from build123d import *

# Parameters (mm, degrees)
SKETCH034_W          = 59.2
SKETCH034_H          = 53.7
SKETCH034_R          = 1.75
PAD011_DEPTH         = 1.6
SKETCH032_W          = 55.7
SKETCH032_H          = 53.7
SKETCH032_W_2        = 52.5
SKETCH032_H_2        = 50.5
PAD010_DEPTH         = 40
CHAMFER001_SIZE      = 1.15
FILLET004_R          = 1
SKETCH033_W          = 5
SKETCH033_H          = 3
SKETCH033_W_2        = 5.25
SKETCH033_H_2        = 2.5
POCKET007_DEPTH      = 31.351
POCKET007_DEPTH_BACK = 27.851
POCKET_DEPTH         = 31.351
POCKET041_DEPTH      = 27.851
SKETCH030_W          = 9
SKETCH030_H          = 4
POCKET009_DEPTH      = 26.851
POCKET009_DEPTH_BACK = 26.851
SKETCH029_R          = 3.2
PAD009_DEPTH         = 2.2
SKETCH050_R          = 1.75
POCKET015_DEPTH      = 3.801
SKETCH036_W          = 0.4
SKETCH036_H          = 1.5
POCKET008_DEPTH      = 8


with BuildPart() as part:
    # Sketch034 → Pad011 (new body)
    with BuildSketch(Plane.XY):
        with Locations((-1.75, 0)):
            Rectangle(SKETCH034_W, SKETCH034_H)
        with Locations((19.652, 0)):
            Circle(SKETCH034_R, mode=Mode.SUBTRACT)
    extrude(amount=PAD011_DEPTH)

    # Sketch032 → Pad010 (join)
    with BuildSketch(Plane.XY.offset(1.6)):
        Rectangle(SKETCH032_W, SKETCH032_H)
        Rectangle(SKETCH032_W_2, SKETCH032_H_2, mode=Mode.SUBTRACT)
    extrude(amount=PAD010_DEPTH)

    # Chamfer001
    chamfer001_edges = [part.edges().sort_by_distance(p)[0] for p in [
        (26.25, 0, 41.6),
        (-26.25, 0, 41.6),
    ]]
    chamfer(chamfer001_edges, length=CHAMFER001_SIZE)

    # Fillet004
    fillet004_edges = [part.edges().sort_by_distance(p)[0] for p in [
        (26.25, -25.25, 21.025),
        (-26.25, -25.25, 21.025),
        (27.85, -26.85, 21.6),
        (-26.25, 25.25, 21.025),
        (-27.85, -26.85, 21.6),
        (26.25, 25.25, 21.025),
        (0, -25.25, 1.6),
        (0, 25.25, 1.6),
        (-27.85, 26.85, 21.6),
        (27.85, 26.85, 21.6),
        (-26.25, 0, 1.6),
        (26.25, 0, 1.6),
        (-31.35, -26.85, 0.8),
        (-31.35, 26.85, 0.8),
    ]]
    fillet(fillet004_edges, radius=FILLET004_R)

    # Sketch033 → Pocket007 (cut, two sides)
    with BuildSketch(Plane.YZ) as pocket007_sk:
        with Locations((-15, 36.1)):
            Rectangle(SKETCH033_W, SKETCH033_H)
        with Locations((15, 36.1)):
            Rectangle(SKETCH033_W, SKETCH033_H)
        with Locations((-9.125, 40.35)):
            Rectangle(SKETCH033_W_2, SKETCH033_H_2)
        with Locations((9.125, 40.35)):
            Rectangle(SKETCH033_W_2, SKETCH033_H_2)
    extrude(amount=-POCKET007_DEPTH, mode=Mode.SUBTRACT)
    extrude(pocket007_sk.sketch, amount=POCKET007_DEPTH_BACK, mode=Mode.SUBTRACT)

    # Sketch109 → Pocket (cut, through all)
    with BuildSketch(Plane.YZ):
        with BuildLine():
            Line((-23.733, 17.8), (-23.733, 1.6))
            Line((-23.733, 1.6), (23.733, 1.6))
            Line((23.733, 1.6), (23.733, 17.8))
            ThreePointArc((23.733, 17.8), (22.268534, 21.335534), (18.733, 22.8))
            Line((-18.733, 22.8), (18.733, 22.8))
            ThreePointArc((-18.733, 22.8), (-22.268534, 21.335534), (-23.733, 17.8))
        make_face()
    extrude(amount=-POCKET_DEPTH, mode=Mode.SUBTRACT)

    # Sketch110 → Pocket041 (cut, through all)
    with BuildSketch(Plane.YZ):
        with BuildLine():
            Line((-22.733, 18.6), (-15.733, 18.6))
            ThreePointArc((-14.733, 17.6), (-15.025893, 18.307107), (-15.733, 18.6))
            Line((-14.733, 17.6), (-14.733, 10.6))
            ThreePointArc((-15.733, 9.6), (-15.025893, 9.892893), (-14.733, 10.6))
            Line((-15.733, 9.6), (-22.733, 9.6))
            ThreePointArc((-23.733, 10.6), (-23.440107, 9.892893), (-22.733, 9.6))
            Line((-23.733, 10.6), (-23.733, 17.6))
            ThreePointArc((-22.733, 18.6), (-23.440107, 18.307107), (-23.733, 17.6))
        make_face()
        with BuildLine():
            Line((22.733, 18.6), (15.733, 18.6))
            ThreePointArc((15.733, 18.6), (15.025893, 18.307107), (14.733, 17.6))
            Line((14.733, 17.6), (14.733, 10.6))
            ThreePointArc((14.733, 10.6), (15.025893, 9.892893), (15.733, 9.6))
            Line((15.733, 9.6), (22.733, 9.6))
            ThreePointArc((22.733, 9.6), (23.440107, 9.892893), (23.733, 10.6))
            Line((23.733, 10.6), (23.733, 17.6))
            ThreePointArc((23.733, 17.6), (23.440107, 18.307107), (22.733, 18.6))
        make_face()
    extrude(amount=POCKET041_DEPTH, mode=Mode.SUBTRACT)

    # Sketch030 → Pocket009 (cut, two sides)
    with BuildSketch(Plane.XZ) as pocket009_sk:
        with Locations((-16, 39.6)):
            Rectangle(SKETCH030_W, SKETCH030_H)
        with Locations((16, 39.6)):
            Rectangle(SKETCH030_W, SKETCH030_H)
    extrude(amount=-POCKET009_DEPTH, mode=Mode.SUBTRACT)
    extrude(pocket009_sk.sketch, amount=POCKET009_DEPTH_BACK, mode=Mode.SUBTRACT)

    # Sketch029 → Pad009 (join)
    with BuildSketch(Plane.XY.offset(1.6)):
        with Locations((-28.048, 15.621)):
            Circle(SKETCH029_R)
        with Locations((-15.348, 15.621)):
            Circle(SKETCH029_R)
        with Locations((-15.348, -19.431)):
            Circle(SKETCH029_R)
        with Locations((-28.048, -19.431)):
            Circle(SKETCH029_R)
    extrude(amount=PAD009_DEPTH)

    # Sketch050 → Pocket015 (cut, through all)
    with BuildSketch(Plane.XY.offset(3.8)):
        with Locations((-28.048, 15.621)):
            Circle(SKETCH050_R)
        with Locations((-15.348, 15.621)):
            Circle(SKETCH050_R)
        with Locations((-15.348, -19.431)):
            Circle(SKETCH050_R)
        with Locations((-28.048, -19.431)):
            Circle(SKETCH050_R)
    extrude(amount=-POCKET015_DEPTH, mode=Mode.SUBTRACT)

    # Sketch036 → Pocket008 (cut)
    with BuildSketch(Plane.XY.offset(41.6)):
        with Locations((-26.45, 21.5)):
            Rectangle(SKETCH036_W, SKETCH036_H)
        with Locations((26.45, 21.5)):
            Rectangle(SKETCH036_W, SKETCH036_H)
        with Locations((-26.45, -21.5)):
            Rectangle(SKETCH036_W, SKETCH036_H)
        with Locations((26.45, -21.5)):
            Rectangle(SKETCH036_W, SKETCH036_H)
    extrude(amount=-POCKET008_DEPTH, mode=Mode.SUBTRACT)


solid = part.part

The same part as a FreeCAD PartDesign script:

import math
import FreeCAD as App
import Part
import Sketcher


def edges_at(feature, points):
    """Names of the edges that pass closest to the given points."""
    edges = feature.Shape.Edges
    near = lambda p: min(range(len(edges)), key=lambda i: edges[i].distToShape(Part.Vertex(*p))[0])
    return sorted({f"Edge{near(p) + 1}" for p in points})

doc = App.newDocument("Part")
body = doc.addObject("PartDesign::Body", "Body")

sketch1 = body.newObject("Sketcher::SketchObject", "Sketch")
sketch1.AttachmentSupport = (doc.getObject("XY_Plane"), [""])
sketch1.MapMode = "FlatFace"
sketch1.addGeometry(Part.LineSegment(App.Vector(-31.35, 26.85, 0), App.Vector(-31.35, -26.85, 0)), False)
sketch1.addGeometry(Part.LineSegment(App.Vector(-31.35, -26.85, 0), App.Vector(27.85, -26.85, 0)), False)
sketch1.addGeometry(Part.LineSegment(App.Vector(27.85, -26.85, 0), App.Vector(27.85, 26.85, 0)), False)
sketch1.addGeometry(Part.LineSegment(App.Vector(27.85, 26.85, 0), App.Vector(-31.35, 26.85, 0)), False)
sketch1.addGeometry(Part.Circle(App.Vector(19.652, 0, 0), App.Vector(0, 0, 1), 1.75), False)
sketch1.addConstraint(Sketcher.Constraint("Coincident", 0, 2, 1, 1))
sketch1.addConstraint(Sketcher.Constraint("Coincident", 1, 2, 2, 1))
sketch1.addConstraint(Sketcher.Constraint("Coincident", 2, 2, 3, 1))
sketch1.addConstraint(Sketcher.Constraint("Coincident", 3, 2, 0, 1))
sketch1.addConstraint(Sketcher.Constraint("Vertical", 0))
sketch1.addConstraint(Sketcher.Constraint("Horizontal", 1))
sketch1.addConstraint(Sketcher.Constraint("Vertical", 2))
sketch1.addConstraint(Sketcher.Constraint("Horizontal", 3))
sketch1.addConstraint(Sketcher.Constraint("PointOnObject", 4, 3, -1))
sketch1.addConstraint(Sketcher.Constraint("Diameter", 4, 3.5))
sketch1.addConstraint(Sketcher.Constraint("DistanceX", 1, 1, 1, 2, 59.2))
sketch1.addConstraint(Sketcher.Constraint("DistanceY", 0, 2, 0, 1, 53.7))
sketch1.addConstraint(Sketcher.Constraint("DistanceX", 0, 2, -1, 1, 31.35))
sketch1.addConstraint(Sketcher.Constraint("DistanceY", 0, 2, -1, 1, 26.85))
sketch1.addConstraint(Sketcher.Constraint("DistanceX", -1, 1, 4, 3, 19.652))
pad1 = body.newObject("PartDesign::Pad", "Pad")
pad1.Profile = sketch1
pad1.Length = 1.6

sketch2 = body.newObject("Sketcher::SketchObject", "Sketch001")
sketch2.AttachmentSupport = (doc.getObject("XY_Plane"), [""])
sketch2.MapMode = "FlatFace"
sketch2.AttachmentOffset = App.Placement(App.Vector(0, 0, 1.6), App.Rotation())
sketch2.addGeometry(Part.LineSegment(App.Vector(-27.85, 26.85, 0), App.Vector(-27.85, -26.85, 0)), False)
sketch2.addGeometry(Part.LineSegment(App.Vector(-27.85, -26.85, 0), App.Vector(27.85, -26.85, 0)), False)
sketch2.addGeometry(Part.LineSegment(App.Vector(27.85, -26.85, 0), App.Vector(27.85, 26.85, 0)), False)
sketch2.addGeometry(Part.LineSegment(App.Vector(27.85, 26.85, 0), App.Vector(-27.85, 26.85, 0)), False)
sketch2.addGeometry(Part.LineSegment(App.Vector(26.25, -25.25, 0), App.Vector(-26.25, -25.25, 0)), False)
sketch2.addGeometry(Part.LineSegment(App.Vector(-26.25, -25.25, 0), App.Vector(-26.25, 25.25, 0)), False)
sketch2.addGeometry(Part.LineSegment(App.Vector(-26.25, 25.25, 0), App.Vector(26.25, 25.25, 0)), False)
sketch2.addGeometry(Part.LineSegment(App.Vector(26.25, 25.25, 0), App.Vector(26.25, -25.25, 0)), False)
sketch2.addConstraint(Sketcher.Constraint("Coincident", 0, 2, 1, 1))
sketch2.addConstraint(Sketcher.Constraint("Coincident", 1, 2, 2, 1))
sketch2.addConstraint(Sketcher.Constraint("Coincident", 2, 2, 3, 1))
sketch2.addConstraint(Sketcher.Constraint("Coincident", 3, 2, 0, 1))
sketch2.addConstraint(Sketcher.Constraint("Coincident", 4, 2, 5, 1))
sketch2.addConstraint(Sketcher.Constraint("Coincident", 5, 2, 6, 1))
sketch2.addConstraint(Sketcher.Constraint("Coincident", 6, 2, 7, 1))
sketch2.addConstraint(Sketcher.Constraint("Coincident", 7, 2, 4, 1))
sketch2.addConstraint(Sketcher.Constraint("Vertical", 0))
sketch2.addConstraint(Sketcher.Constraint("Horizontal", 1))
sketch2.addConstraint(Sketcher.Constraint("Vertical", 2))
sketch2.addConstraint(Sketcher.Constraint("Horizontal", 3))
sketch2.addConstraint(Sketcher.Constraint("Horizontal", 4))
sketch2.addConstraint(Sketcher.Constraint("Vertical", 5))
sketch2.addConstraint(Sketcher.Constraint("Horizontal", 6))
sketch2.addConstraint(Sketcher.Constraint("Vertical", 7))
sketch2.addConstraint(Sketcher.Constraint("Symmetric", 0, 2, 2, 2, -1, 1))
sketch2.addConstraint(Sketcher.Constraint("Symmetric", 4, 2, 6, 2, -1, 1))
sketch2.addConstraint(Sketcher.Constraint("DistanceX", 1, 1, 1, 2, 55.7))
sketch2.addConstraint(Sketcher.Constraint("DistanceX", 4, 2, 4, 1, 52.5))
sketch2.addConstraint(Sketcher.Constraint("DistanceY", 0, 2, 0, 1, 53.7))
sketch2.addConstraint(Sketcher.Constraint("DistanceY", 5, 1, 5, 2, 50.5))
pad2 = body.newObject("PartDesign::Pad", "Pad001")
pad2.Profile = sketch2
pad2.Length = 40
doc.recompute()

chamfer = body.newObject("PartDesign::Chamfer", "Chamfer")
chamfer.Base = (pad2, edges_at(pad2, [(26.25, 0, 41.6), (-26.25, 0, 41.6)]))
chamfer.Size = 1.15
doc.recompute()

fillet = body.newObject("PartDesign::Fillet", "Fillet")
fillet.Base = (chamfer, edges_at(chamfer, [
    (26.25, -25.25, 21.025),
    (-26.25, -25.25, 21.025),
    (27.85, -26.85, 20.8),
    (-26.25, 25.25, 21.025),
    (-27.85, -26.85, 21.6),
    (26.25, 25.25, 21.025),
    (0, -25.25, 1.6),
    (0, 25.25, 1.6),
    (-27.85, 26.85, 21.6),
    (27.85, 26.85, 20.8),
    (-26.25, 0, 1.6),
    (26.25, 0, 1.6),
    (-31.35, -26.85, 0.8),
    (-31.35, 26.85, 0.8),
]))
fillet.Radius = 1

sketch3 = body.newObject("Sketcher::SketchObject", "Sketch002")
sketch3.AttachmentSupport = (doc.getObject("YZ_Plane"), [""])
sketch3.MapMode = "FlatFace"
sketch3.addGeometry(Part.LineSegment(App.Vector(-17.5, 37.6, 0), App.Vector(-17.5, 34.6, 0)), False)
sketch3.addGeometry(Part.LineSegment(App.Vector(-17.5, 34.6, 0), App.Vector(-12.5, 34.6, 0)), False)
sketch3.addGeometry(Part.LineSegment(App.Vector(-12.5, 34.6, 0), App.Vector(-12.5, 37.6, 0)), False)
sketch3.addGeometry(Part.LineSegment(App.Vector(-12.5, 37.6, 0), App.Vector(-17.5, 37.6, 0)), False)
sketch3.addGeometry(Part.LineSegment(App.Vector(12.5, 37.6, 0), App.Vector(12.5, 34.6, 0)), False)
sketch3.addGeometry(Part.LineSegment(App.Vector(12.5, 34.6, 0), App.Vector(17.5, 34.6, 0)), False)
sketch3.addGeometry(Part.LineSegment(App.Vector(17.5, 34.6, 0), App.Vector(17.5, 37.6, 0)), False)
sketch3.addGeometry(Part.LineSegment(App.Vector(17.5, 37.6, 0), App.Vector(12.5, 37.6, 0)), False)
sketch3.addGeometry(Part.LineSegment(App.Vector(-11.75, 41.6, 0), App.Vector(-11.75, 39.1, 0)), False)
sketch3.addGeometry(Part.LineSegment(App.Vector(-11.75, 39.1, 0), App.Vector(-6.5, 39.1, 0)), False)
sketch3.addGeometry(Part.LineSegment(App.Vector(-6.5, 39.1, 0), App.Vector(-6.5, 41.6, 0)), False)
sketch3.addGeometry(Part.LineSegment(App.Vector(-6.5, 41.6, 0), App.Vector(-11.75, 41.6, 0)), False)
sketch3.addGeometry(Part.LineSegment(App.Vector(6.5, 41.6, 0), App.Vector(6.5, 39.1, 0)), False)
sketch3.addGeometry(Part.LineSegment(App.Vector(6.5, 39.1, 0), App.Vector(11.75, 39.1, 0)), False)
sketch3.addGeometry(Part.LineSegment(App.Vector(11.75, 39.1, 0), App.Vector(11.75, 41.6, 0)), False)
sketch3.addGeometry(Part.LineSegment(App.Vector(11.75, 41.6, 0), App.Vector(6.5, 41.6, 0)), False)
sketch3.addConstraint(Sketcher.Constraint("Coincident", 0, 2, 1, 1))
sketch3.addConstraint(Sketcher.Constraint("Coincident", 1, 2, 2, 1))
sketch3.addConstraint(Sketcher.Constraint("Coincident", 2, 2, 3, 1))
sketch3.addConstraint(Sketcher.Constraint("Coincident", 3, 2, 0, 1))
sketch3.addConstraint(Sketcher.Constraint("Coincident", 4, 2, 5, 1))
sketch3.addConstraint(Sketcher.Constraint("Coincident", 5, 2, 6, 1))
sketch3.addConstraint(Sketcher.Constraint("Coincident", 6, 2, 7, 1))
sketch3.addConstraint(Sketcher.Constraint("Coincident", 7, 2, 4, 1))
sketch3.addConstraint(Sketcher.Constraint("Coincident", 8, 2, 9, 1))
sketch3.addConstraint(Sketcher.Constraint("Coincident", 9, 2, 10, 1))
sketch3.addConstraint(Sketcher.Constraint("Coincident", 10, 2, 11, 1))
sketch3.addConstraint(Sketcher.Constraint("Coincident", 11, 2, 8, 1))
sketch3.addConstraint(Sketcher.Constraint("Coincident", 12, 2, 13, 1))
sketch3.addConstraint(Sketcher.Constraint("Coincident", 13, 2, 14, 1))
sketch3.addConstraint(Sketcher.Constraint("Coincident", 14, 2, 15, 1))
sketch3.addConstraint(Sketcher.Constraint("Coincident", 15, 2, 12, 1))
sketch3.addConstraint(Sketcher.Constraint("Vertical", 0))
sketch3.addConstraint(Sketcher.Constraint("Horizontal", 1))
sketch3.addConstraint(Sketcher.Constraint("Vertical", 2))
sketch3.addConstraint(Sketcher.Constraint("Horizontal", 3))
sketch3.addConstraint(Sketcher.Constraint("Vertical", 4))
sketch3.addConstraint(Sketcher.Constraint("Horizontal", 5))
sketch3.addConstraint(Sketcher.Constraint("Vertical", 6))
sketch3.addConstraint(Sketcher.Constraint("Horizontal", 7))
sketch3.addConstraint(Sketcher.Constraint("Vertical", 8))
sketch3.addConstraint(Sketcher.Constraint("Horizontal", 9))
sketch3.addConstraint(Sketcher.Constraint("Vertical", 10))
sketch3.addConstraint(Sketcher.Constraint("Horizontal", 11))
sketch3.addConstraint(Sketcher.Constraint("Vertical", 12))
sketch3.addConstraint(Sketcher.Constraint("Horizontal", 13))
sketch3.addConstraint(Sketcher.Constraint("Vertical", 14))
sketch3.addConstraint(Sketcher.Constraint("Horizontal", 15))
sketch3.addConstraint(Sketcher.Constraint("Symmetric", 1, 2, 4, 2, -2))
sketch3.addConstraint(Sketcher.Constraint("Symmetric", 3, 2, 6, 2, -2))
sketch3.addConstraint(Sketcher.Constraint("Symmetric", 9, 2, 12, 2, -2))
sketch3.addConstraint(Sketcher.Constraint("Symmetric", 11, 2, 14, 2, -2))
sketch3.addConstraint(Sketcher.Constraint("DistanceX", 1, 1, 1, 2, 5.0))
sketch3.addConstraint(Sketcher.Constraint("DistanceY", 0, 2, 0, 1, 3.0))
sketch3.addConstraint(Sketcher.Constraint("DistanceY", 8, 2, 8, 1, 2.5))
sketch3.addConstraint(Sketcher.Constraint("DistanceX", 1, 2, 4, 2, 25.0))
sketch3.addConstraint(Sketcher.Constraint("DistanceX", 2, 2, 9, 2, 6.0))
sketch3.addConstraint(Sketcher.Constraint("DistanceY", 2, 2, 10, 2, 4.0))
sketch3.addConstraint(Sketcher.Constraint("DistanceX", 9, 1, 9, 2, 5.25))
sketch3.addConstraint(Sketcher.Constraint("DistanceY", -1, 1, 0, 2, 34.6))
pocket1 = body.newObject("PartDesign::Pocket", "Pocket")
pocket1.Profile = sketch3
pocket1.Type = "ThroughAll"
pocket1.Midplane = True

sketch4 = body.newObject("Sketcher::SketchObject", "Sketch003")
sketch4.AttachmentSupport = (doc.getObject("YZ_Plane"), [""])
sketch4.MapMode = "FlatFace"
sketch4.addGeometry(Part.LineSegment(App.Vector(-23.733, 17.8, 0), App.Vector(-23.733, 1.6, 0)), False)
sketch4.addGeometry(Part.LineSegment(App.Vector(-23.733, 1.6, 0), App.Vector(23.733, 1.6, 0)), False)
sketch4.addGeometry(Part.LineSegment(App.Vector(23.733, 1.6, 0), App.Vector(23.733, 17.8, 0)), False)
sketch4.addGeometry(Part.ArcOfCircle(Part.Circle(App.Vector(18.733, 17.8, 0), App.Vector(0, 0, 1), 5), math.radians(-0.000004), math.radians(90.000004)), False)
sketch4.addGeometry(Part.LineSegment(App.Vector(18.733, 22.8, 0), App.Vector(-18.733, 22.8, 0)), False)
sketch4.addGeometry(Part.ArcOfCircle(Part.Circle(App.Vector(-18.733, 17.8, 0), App.Vector(0, 0, 1), 5), math.radians(89.999996), math.radians(180.000004)), False)
sketch4.addConstraint(Sketcher.Constraint("Coincident", 0, 2, 1, 1))
sketch4.addConstraint(Sketcher.Constraint("Coincident", 1, 2, 2, 1))
sketch4.addConstraint(Sketcher.Constraint("Tangent", 2, 2, 3, 1))
sketch4.addConstraint(Sketcher.Constraint("Tangent", 3, 2, 4, 1))
sketch4.addConstraint(Sketcher.Constraint("Tangent", 4, 2, 5, 1))
sketch4.addConstraint(Sketcher.Constraint("Tangent", 5, 2, 0, 1))
sketch4.addConstraint(Sketcher.Constraint("Vertical", 0))
sketch4.addConstraint(Sketcher.Constraint("Horizontal", 1))
sketch4.addConstraint(Sketcher.Constraint("Vertical", 2))
sketch4.addConstraint(Sketcher.Constraint("Horizontal", 4))
sketch4.addConstraint(Sketcher.Constraint("Equal", 3, 5))
sketch4.addConstraint(Sketcher.Constraint("Radius", 3, 5.0))
sketch4.addConstraint(Sketcher.Constraint("DistanceY", 0, 2, 0, 1, 16.2))
sketch4.addConstraint(Sketcher.Constraint("DistanceY", -1, 1, 3, 3, 17.8))
sketch4.addConstraint(Sketcher.Constraint("DistanceX", 1, 1, 1, 2, 47.466))
sketch4.addConstraint(Sketcher.Constraint("DistanceX", -1, 1, 3, 3, 18.733))
pocket2 = body.newObject("PartDesign::Pocket", "Pocket001")
pocket2.Profile = sketch4
pocket2.Type = "ThroughAll"

sketch5 = body.newObject("Sketcher::SketchObject", "Sketch004")
sketch5.AttachmentSupport = (doc.getObject("YZ_Plane"), [""])
sketch5.MapMode = "FlatFace"
sketch5.addGeometry(Part.LineSegment(App.Vector(-15.733, 18.6, 0), App.Vector(-22.733, 18.6, 0)), False)
sketch5.addGeometry(Part.ArcOfCircle(Part.Circle(App.Vector(-22.733001, 17.600001, 0), App.Vector(0, 0, 1), 0.999999), math.radians(89.999957), math.radians(180.000043)), False)
sketch5.addGeometry(Part.LineSegment(App.Vector(-23.733, 17.6, 0), App.Vector(-23.733, 10.6, 0)), False)
sketch5.addGeometry(Part.ArcOfCircle(Part.Circle(App.Vector(-22.733001, 10.599999, 0), App.Vector(0, 0, 1), 0.999999), math.radians(179.999957), math.radians(270.000043)), False)
sketch5.addGeometry(Part.LineSegment(App.Vector(-22.733, 9.6, 0), App.Vector(-15.733, 9.6, 0)), False)
sketch5.addGeometry(Part.ArcOfCircle(Part.Circle(App.Vector(-15.732999, 10.599999, 0), App.Vector(0, 0, 1), 0.999999), math.radians(-90.000043), math.radians(0.000043)), False)
sketch5.addGeometry(Part.LineSegment(App.Vector(-14.733, 10.6, 0), App.Vector(-14.733, 17.6, 0)), False)
sketch5.addGeometry(Part.ArcOfCircle(Part.Circle(App.Vector(-15.732999, 17.600001, 0), App.Vector(0, 0, 1), 0.999999), math.radians(-0.000043), math.radians(90.000043)), False)
sketch5.addGeometry(Part.LineSegment(App.Vector(22.733, 18.6, 0), App.Vector(15.733, 18.6, 0)), False)
sketch5.addGeometry(Part.ArcOfCircle(Part.Circle(App.Vector(15.732999, 17.600001, 0), App.Vector(0, 0, 1), 0.999999), math.radians(89.999957), math.radians(180.000043)), False)
sketch5.addGeometry(Part.LineSegment(App.Vector(14.733, 17.6, 0), App.Vector(14.733, 10.6, 0)), False)
sketch5.addGeometry(Part.ArcOfCircle(Part.Circle(App.Vector(15.732999, 10.599999, 0), App.Vector(0, 0, 1), 0.999999), math.radians(179.999957), math.radians(270.000043)), False)
sketch5.addGeometry(Part.LineSegment(App.Vector(15.733, 9.6, 0), App.Vector(22.733, 9.6, 0)), False)
sketch5.addGeometry(Part.ArcOfCircle(Part.Circle(App.Vector(22.733001, 10.599999, 0), App.Vector(0, 0, 1), 0.999999), math.radians(-90.000043), math.radians(0.000043)), False)
sketch5.addGeometry(Part.LineSegment(App.Vector(23.733, 10.6, 0), App.Vector(23.733, 17.6, 0)), False)
sketch5.addGeometry(Part.ArcOfCircle(Part.Circle(App.Vector(22.733001, 17.600001, 0), App.Vector(0, 0, 1), 0.999999), math.radians(-0.000043), math.radians(90.000043)), False)
sketch5.addConstraint(Sketcher.Constraint("Tangent", 0, 2, 1, 1))
sketch5.addConstraint(Sketcher.Constraint("Tangent", 1, 2, 2, 1))
sketch5.addConstraint(Sketcher.Constraint("Tangent", 2, 2, 3, 1))
sketch5.addConstraint(Sketcher.Constraint("Tangent", 3, 2, 4, 1))
sketch5.addConstraint(Sketcher.Constraint("Tangent", 4, 2, 5, 1))
sketch5.addConstraint(Sketcher.Constraint("Tangent", 5, 2, 6, 1))
sketch5.addConstraint(Sketcher.Constraint("Tangent", 6, 2, 7, 1))
sketch5.addConstraint(Sketcher.Constraint("Tangent", 7, 2, 0, 1))
sketch5.addConstraint(Sketcher.Constraint("Tangent", 8, 2, 9, 1))
sketch5.addConstraint(Sketcher.Constraint("Tangent", 9, 2, 10, 1))
sketch5.addConstraint(Sketcher.Constraint("Tangent", 10, 2, 11, 1))
sketch5.addConstraint(Sketcher.Constraint("Tangent", 11, 2, 12, 1))
sketch5.addConstraint(Sketcher.Constraint("Tangent", 12, 2, 13, 1))
sketch5.addConstraint(Sketcher.Constraint("Tangent", 13, 2, 14, 1))
sketch5.addConstraint(Sketcher.Constraint("Tangent", 14, 2, 15, 1))
sketch5.addConstraint(Sketcher.Constraint("Tangent", 15, 2, 8, 1))
sketch5.addConstraint(Sketcher.Constraint("Horizontal", 0))
sketch5.addConstraint(Sketcher.Constraint("Vertical", 2))
sketch5.addConstraint(Sketcher.Constraint("Horizontal", 4))
sketch5.addConstraint(Sketcher.Constraint("Vertical", 6))
sketch5.addConstraint(Sketcher.Constraint("Horizontal", 8))
sketch5.addConstraint(Sketcher.Constraint("Vertical", 10))
sketch5.addConstraint(Sketcher.Constraint("Horizontal", 12))
sketch5.addConstraint(Sketcher.Constraint("Vertical", 14))
sketch5.addConstraint(Sketcher.Constraint("Equal", 1, 3))
sketch5.addConstraint(Sketcher.Constraint("Equal", 3, 5))
sketch5.addConstraint(Sketcher.Constraint("Equal", 5, 7))
sketch5.addConstraint(Sketcher.Constraint("Equal", 7, 9))
sketch5.addConstraint(Sketcher.Constraint("Equal", 9, 11))
sketch5.addConstraint(Sketcher.Constraint("Equal", 11, 13))
sketch5.addConstraint(Sketcher.Constraint("Equal", 13, 15))
sketch5.addConstraint(Sketcher.Constraint("Symmetric", 7, 3, 9, 3, -2))
sketch5.addConstraint(Sketcher.Constraint("Symmetric", 3, 3, 13, 3, -2))
sketch5.addConstraint(Sketcher.Constraint("Equal", 12, 2))
sketch5.addConstraint(Sketcher.Constraint("Radius", 1, 0.999999))
sketch5.addConstraint(Sketcher.Constraint("DistanceX", 0, 2, 0, 1, 7.0))
sketch5.addConstraint(Sketcher.Constraint("DistanceY", -1, 1, 1, 3, 17.600001))
sketch5.addConstraint(Sketcher.Constraint("DistanceX", 1, 3, -1, 1, 22.733001))
pocket3 = body.newObject("PartDesign::Pocket", "Pocket002")
pocket3.Profile = sketch5
pocket3.Type = "ThroughAll"
pocket3.Reversed = True

sketch6 = body.newObject("Sketcher::SketchObject", "Sketch005")
sketch6.AttachmentSupport = (doc.getObject("XZ_Plane"), [""])
sketch6.MapMode = "FlatFace"
sketch6.addGeometry(Part.LineSegment(App.Vector(-20.5, 41.6, 0), App.Vector(-20.5, 37.6, 0)), False)
sketch6.addGeometry(Part.LineSegment(App.Vector(-20.5, 37.6, 0), App.Vector(-11.5, 37.6, 0)), False)
sketch6.addGeometry(Part.LineSegment(App.Vector(-11.5, 37.6, 0), App.Vector(-11.5, 41.6, 0)), False)
sketch6.addGeometry(Part.LineSegment(App.Vector(-11.5, 41.6, 0), App.Vector(-20.5, 41.6, 0)), False)
sketch6.addGeometry(Part.LineSegment(App.Vector(11.5, 41.6, 0), App.Vector(11.5, 37.6, 0)), False)
sketch6.addGeometry(Part.LineSegment(App.Vector(11.5, 37.6, 0), App.Vector(20.5, 37.6, 0)), False)
sketch6.addGeometry(Part.LineSegment(App.Vector(20.5, 37.6, 0), App.Vector(20.5, 41.6, 0)), False)
sketch6.addGeometry(Part.LineSegment(App.Vector(20.5, 41.6, 0), App.Vector(11.5, 41.6, 0)), False)
sketch6.addConstraint(Sketcher.Constraint("Coincident", 0, 2, 1, 1))
sketch6.addConstraint(Sketcher.Constraint("Coincident", 1, 2, 2, 1))
sketch6.addConstraint(Sketcher.Constraint("Coincident", 2, 2, 3, 1))
sketch6.addConstraint(Sketcher.Constraint("Coincident", 3, 2, 0, 1))
sketch6.addConstraint(Sketcher.Constraint("Coincident", 4, 2, 5, 1))
sketch6.addConstraint(Sketcher.Constraint("Coincident", 5, 2, 6, 1))
sketch6.addConstraint(Sketcher.Constraint("Coincident", 6, 2, 7, 1))
sketch6.addConstraint(Sketcher.Constraint("Coincident", 7, 2, 4, 1))
sketch6.addConstraint(Sketcher.Constraint("Vertical", 0))
sketch6.addConstraint(Sketcher.Constraint("Horizontal", 1))
sketch6.addConstraint(Sketcher.Constraint("Vertical", 2))
sketch6.addConstraint(Sketcher.Constraint("Horizontal", 3))
sketch6.addConstraint(Sketcher.Constraint("Vertical", 4))
sketch6.addConstraint(Sketcher.Constraint("Horizontal", 5))
sketch6.addConstraint(Sketcher.Constraint("Vertical", 6))
sketch6.addConstraint(Sketcher.Constraint("Horizontal", 7))
sketch6.addConstraint(Sketcher.Constraint("Symmetric", 1, 2, 4, 2, -2))
sketch6.addConstraint(Sketcher.Constraint("Symmetric", 3, 2, 6, 2, -2))
sketch6.addConstraint(Sketcher.Constraint("DistanceX", 1, 1, 1, 2, 9.0))
sketch6.addConstraint(Sketcher.Constraint("DistanceY", 0, 2, 0, 1, 4.0))
sketch6.addConstraint(Sketcher.Constraint("DistanceX", 1, 2, 4, 2, 23.0))
sketch6.addConstraint(Sketcher.Constraint("DistanceY", -1, 1, 0, 2, 37.6))
pocket4 = body.newObject("PartDesign::Pocket", "Pocket003")
pocket4.Profile = sketch6
pocket4.Type = "ThroughAll"
pocket4.Midplane = True

sketch7 = body.newObject("Sketcher::SketchObject", "Sketch006")
sketch7.AttachmentSupport = (doc.getObject("XY_Plane"), [""])
sketch7.MapMode = "FlatFace"
sketch7.AttachmentOffset = App.Placement(App.Vector(0, 0, 1.6), App.Rotation())
sketch7.addGeometry(Part.Circle(App.Vector(-28.048, 15.621, 0), App.Vector(0, 0, 1), 3.2), False)
sketch7.addGeometry(Part.Circle(App.Vector(-15.348, 15.621, 0), App.Vector(0, 0, 1), 3.2), False)
sketch7.addGeometry(Part.Circle(App.Vector(-15.348, -19.431, 0), App.Vector(0, 0, 1), 3.2), False)
sketch7.addGeometry(Part.Circle(App.Vector(-28.048, -19.431, 0), App.Vector(0, 0, 1), 3.2), False)
sketch7.addConstraint(Sketcher.Constraint("Equal", 0, 1))
sketch7.addConstraint(Sketcher.Constraint("Equal", 1, 2))
sketch7.addConstraint(Sketcher.Constraint("Equal", 2, 3))
sketch7.addConstraint(Sketcher.Constraint("Horizontal", 0, 3, 1, 3))
sketch7.addConstraint(Sketcher.Constraint("Horizontal", 2, 3, 3, 3))
sketch7.addConstraint(Sketcher.Constraint("Vertical", 1, 3, 2, 3))
sketch7.addConstraint(Sketcher.Constraint("Vertical", 0, 3, 3, 3))
sketch7.addConstraint(Sketcher.Constraint("Diameter", 0, 6.4))
sketch7.addConstraint(Sketcher.Constraint("DistanceX", 0, 3, 1, 3, 12.7))
sketch7.addConstraint(Sketcher.Constraint("DistanceX", 0, 3, -1, 1, 28.048))
sketch7.addConstraint(Sketcher.Constraint("DistanceY", -1, 1, 0, 3, 15.621))
sketch7.addConstraint(Sketcher.Constraint("DistanceY", 2, 3, -1, 1, 19.431))
pad3 = body.newObject("PartDesign::Pad", "Pad002")
pad3.Profile = sketch7
pad3.Length = 2.2

sketch8 = body.newObject("Sketcher::SketchObject", "Sketch007")
sketch8.AttachmentSupport = (doc.getObject("XY_Plane"), [""])
sketch8.MapMode = "FlatFace"
sketch8.AttachmentOffset = App.Placement(App.Vector(0, 0, 3.8), App.Rotation())
sketch8.addGeometry(Part.Circle(App.Vector(-28.048, 15.621, 0), App.Vector(0, 0, 1), 1.75), False)
sketch8.addGeometry(Part.Circle(App.Vector(-15.348, 15.621, 0), App.Vector(0, 0, 1), 1.75), False)
sketch8.addGeometry(Part.Circle(App.Vector(-15.348, -19.431, 0), App.Vector(0, 0, 1), 1.75), False)
sketch8.addGeometry(Part.Circle(App.Vector(-28.048, -19.431, 0), App.Vector(0, 0, 1), 1.75), False)
sketch8.addConstraint(Sketcher.Constraint("Equal", 0, 1))
sketch8.addConstraint(Sketcher.Constraint("Equal", 1, 2))
sketch8.addConstraint(Sketcher.Constraint("Equal", 2, 3))
sketch8.addConstraint(Sketcher.Constraint("Horizontal", 0, 3, 1, 3))
sketch8.addConstraint(Sketcher.Constraint("Horizontal", 2, 3, 3, 3))
sketch8.addConstraint(Sketcher.Constraint("Vertical", 1, 3, 2, 3))
sketch8.addConstraint(Sketcher.Constraint("Vertical", 0, 3, 3, 3))
sketch8.addConstraint(Sketcher.Constraint("Diameter", 0, 3.5))
sketch8.addConstraint(Sketcher.Constraint("DistanceX", 0, 3, 1, 3, 12.7))
sketch8.addConstraint(Sketcher.Constraint("DistanceX", 0, 3, -1, 1, 28.048))
sketch8.addConstraint(Sketcher.Constraint("DistanceY", -1, 1, 0, 3, 15.621))
sketch8.addConstraint(Sketcher.Constraint("DistanceY", 2, 3, -1, 1, 19.431))
pocket5 = body.newObject("PartDesign::Pocket", "Pocket004")
pocket5.Profile = sketch8
pocket5.Type = "ThroughAll"

sketch9 = body.newObject("Sketcher::SketchObject", "Sketch008")
sketch9.AttachmentSupport = (doc.getObject("XY_Plane"), [""])
sketch9.MapMode = "FlatFace"
sketch9.AttachmentOffset = App.Placement(App.Vector(0, 0, 41.6), App.Rotation())
sketch9.addGeometry(Part.LineSegment(App.Vector(-26.65, 22.25, 0), App.Vector(-26.65, 20.75, 0)), False)
sketch9.addGeometry(Part.LineSegment(App.Vector(-26.65, 20.75, 0), App.Vector(-26.25, 20.75, 0)), False)
sketch9.addGeometry(Part.LineSegment(App.Vector(-26.25, 20.75, 0), App.Vector(-26.25, 22.25, 0)), False)
sketch9.addGeometry(Part.LineSegment(App.Vector(-26.25, 22.25, 0), App.Vector(-26.65, 22.25, 0)), False)
sketch9.addGeometry(Part.LineSegment(App.Vector(26.25, 22.25, 0), App.Vector(26.25, 20.75, 0)), False)
sketch9.addGeometry(Part.LineSegment(App.Vector(26.25, 20.75, 0), App.Vector(26.65, 20.75, 0)), False)
sketch9.addGeometry(Part.LineSegment(App.Vector(26.65, 20.75, 0), App.Vector(26.65, 22.25, 0)), False)
sketch9.addGeometry(Part.LineSegment(App.Vector(26.65, 22.25, 0), App.Vector(26.25, 22.25, 0)), False)
sketch9.addGeometry(Part.LineSegment(App.Vector(-26.65, -20.75, 0), App.Vector(-26.65, -22.25, 0)), False)
sketch9.addGeometry(Part.LineSegment(App.Vector(-26.65, -22.25, 0), App.Vector(-26.25, -22.25, 0)), False)
sketch9.addGeometry(Part.LineSegment(App.Vector(-26.25, -22.25, 0), App.Vector(-26.25, -20.75, 0)), False)
sketch9.addGeometry(Part.LineSegment(App.Vector(-26.25, -20.75, 0), App.Vector(-26.65, -20.75, 0)), False)
sketch9.addGeometry(Part.LineSegment(App.Vector(26.25, -20.75, 0), App.Vector(26.25, -22.25, 0)), False)
sketch9.addGeometry(Part.LineSegment(App.Vector(26.25, -22.25, 0), App.Vector(26.65, -22.25, 0)), False)
sketch9.addGeometry(Part.LineSegment(App.Vector(26.65, -22.25, 0), App.Vector(26.65, -20.75, 0)), False)
sketch9.addGeometry(Part.LineSegment(App.Vector(26.65, -20.75, 0), App.Vector(26.25, -20.75, 0)), False)
sketch9.addConstraint(Sketcher.Constraint("Coincident", 0, 2, 1, 1))
sketch9.addConstraint(Sketcher.Constraint("Coincident", 1, 2, 2, 1))
sketch9.addConstraint(Sketcher.Constraint("Coincident", 2, 2, 3, 1))
sketch9.addConstraint(Sketcher.Constraint("Coincident", 3, 2, 0, 1))
sketch9.addConstraint(Sketcher.Constraint("Coincident", 4, 2, 5, 1))
sketch9.addConstraint(Sketcher.Constraint("Coincident", 5, 2, 6, 1))
sketch9.addConstraint(Sketcher.Constraint("Coincident", 6, 2, 7, 1))
sketch9.addConstraint(Sketcher.Constraint("Coincident", 7, 2, 4, 1))
sketch9.addConstraint(Sketcher.Constraint("Coincident", 8, 2, 9, 1))
sketch9.addConstraint(Sketcher.Constraint("Coincident", 9, 2, 10, 1))
sketch9.addConstraint(Sketcher.Constraint("Coincident", 10, 2, 11, 1))
sketch9.addConstraint(Sketcher.Constraint("Coincident", 11, 2, 8, 1))
sketch9.addConstraint(Sketcher.Constraint("Coincident", 12, 2, 13, 1))
sketch9.addConstraint(Sketcher.Constraint("Coincident", 13, 2, 14, 1))
sketch9.addConstraint(Sketcher.Constraint("Coincident", 14, 2, 15, 1))
sketch9.addConstraint(Sketcher.Constraint("Coincident", 15, 2, 12, 1))
sketch9.addConstraint(Sketcher.Constraint("Vertical", 0))
sketch9.addConstraint(Sketcher.Constraint("Horizontal", 1))
sketch9.addConstraint(Sketcher.Constraint("Vertical", 2))
sketch9.addConstraint(Sketcher.Constraint("Horizontal", 3))
sketch9.addConstraint(Sketcher.Constraint("Vertical", 4))
sketch9.addConstraint(Sketcher.Constraint("Horizontal", 5))
sketch9.addConstraint(Sketcher.Constraint("Vertical", 6))
sketch9.addConstraint(Sketcher.Constraint("Horizontal", 7))
sketch9.addConstraint(Sketcher.Constraint("Vertical", 8))
sketch9.addConstraint(Sketcher.Constraint("Horizontal", 9))
sketch9.addConstraint(Sketcher.Constraint("Vertical", 10))
sketch9.addConstraint(Sketcher.Constraint("Horizontal", 11))
sketch9.addConstraint(Sketcher.Constraint("Vertical", 12))
sketch9.addConstraint(Sketcher.Constraint("Horizontal", 13))
sketch9.addConstraint(Sketcher.Constraint("Vertical", 14))
sketch9.addConstraint(Sketcher.Constraint("Horizontal", 15))
sketch9.addConstraint(Sketcher.Constraint("Symmetric", 6, 2, 8, 2, -1, 1))
sketch9.addConstraint(Sketcher.Constraint("Symmetric", 4, 2, 10, 2, -1, 1))
sketch9.addConstraint(Sketcher.Constraint("Symmetric", 2, 2, 12, 2, -1, 1))
sketch9.addConstraint(Sketcher.Constraint("Symmetric", 0, 2, 14, 2, -1, 1))
sketch9.addConstraint(Sketcher.Constraint("Symmetric", 1, 2, 4, 2, -2))
sketch9.addConstraint(Sketcher.Constraint("Symmetric", 3, 2, 6, 2, -2))
sketch9.addConstraint(Sketcher.Constraint("DistanceX", 1, 1, 1, 2, 0.4))
sketch9.addConstraint(Sketcher.Constraint("DistanceY", 0, 2, 0, 1, 1.5))
sketch9.addConstraint(Sketcher.Constraint("DistanceY", 8, 2, 0, 2, 43.0))
sketch9.addConstraint(Sketcher.Constraint("DistanceX", 1, 2, 4, 2, 52.5))
pocket6 = body.newObject("PartDesign::Pocket", "Pocket005")
pocket6.Profile = sketch9
pocket6.Length = 8

doc.recompute()
